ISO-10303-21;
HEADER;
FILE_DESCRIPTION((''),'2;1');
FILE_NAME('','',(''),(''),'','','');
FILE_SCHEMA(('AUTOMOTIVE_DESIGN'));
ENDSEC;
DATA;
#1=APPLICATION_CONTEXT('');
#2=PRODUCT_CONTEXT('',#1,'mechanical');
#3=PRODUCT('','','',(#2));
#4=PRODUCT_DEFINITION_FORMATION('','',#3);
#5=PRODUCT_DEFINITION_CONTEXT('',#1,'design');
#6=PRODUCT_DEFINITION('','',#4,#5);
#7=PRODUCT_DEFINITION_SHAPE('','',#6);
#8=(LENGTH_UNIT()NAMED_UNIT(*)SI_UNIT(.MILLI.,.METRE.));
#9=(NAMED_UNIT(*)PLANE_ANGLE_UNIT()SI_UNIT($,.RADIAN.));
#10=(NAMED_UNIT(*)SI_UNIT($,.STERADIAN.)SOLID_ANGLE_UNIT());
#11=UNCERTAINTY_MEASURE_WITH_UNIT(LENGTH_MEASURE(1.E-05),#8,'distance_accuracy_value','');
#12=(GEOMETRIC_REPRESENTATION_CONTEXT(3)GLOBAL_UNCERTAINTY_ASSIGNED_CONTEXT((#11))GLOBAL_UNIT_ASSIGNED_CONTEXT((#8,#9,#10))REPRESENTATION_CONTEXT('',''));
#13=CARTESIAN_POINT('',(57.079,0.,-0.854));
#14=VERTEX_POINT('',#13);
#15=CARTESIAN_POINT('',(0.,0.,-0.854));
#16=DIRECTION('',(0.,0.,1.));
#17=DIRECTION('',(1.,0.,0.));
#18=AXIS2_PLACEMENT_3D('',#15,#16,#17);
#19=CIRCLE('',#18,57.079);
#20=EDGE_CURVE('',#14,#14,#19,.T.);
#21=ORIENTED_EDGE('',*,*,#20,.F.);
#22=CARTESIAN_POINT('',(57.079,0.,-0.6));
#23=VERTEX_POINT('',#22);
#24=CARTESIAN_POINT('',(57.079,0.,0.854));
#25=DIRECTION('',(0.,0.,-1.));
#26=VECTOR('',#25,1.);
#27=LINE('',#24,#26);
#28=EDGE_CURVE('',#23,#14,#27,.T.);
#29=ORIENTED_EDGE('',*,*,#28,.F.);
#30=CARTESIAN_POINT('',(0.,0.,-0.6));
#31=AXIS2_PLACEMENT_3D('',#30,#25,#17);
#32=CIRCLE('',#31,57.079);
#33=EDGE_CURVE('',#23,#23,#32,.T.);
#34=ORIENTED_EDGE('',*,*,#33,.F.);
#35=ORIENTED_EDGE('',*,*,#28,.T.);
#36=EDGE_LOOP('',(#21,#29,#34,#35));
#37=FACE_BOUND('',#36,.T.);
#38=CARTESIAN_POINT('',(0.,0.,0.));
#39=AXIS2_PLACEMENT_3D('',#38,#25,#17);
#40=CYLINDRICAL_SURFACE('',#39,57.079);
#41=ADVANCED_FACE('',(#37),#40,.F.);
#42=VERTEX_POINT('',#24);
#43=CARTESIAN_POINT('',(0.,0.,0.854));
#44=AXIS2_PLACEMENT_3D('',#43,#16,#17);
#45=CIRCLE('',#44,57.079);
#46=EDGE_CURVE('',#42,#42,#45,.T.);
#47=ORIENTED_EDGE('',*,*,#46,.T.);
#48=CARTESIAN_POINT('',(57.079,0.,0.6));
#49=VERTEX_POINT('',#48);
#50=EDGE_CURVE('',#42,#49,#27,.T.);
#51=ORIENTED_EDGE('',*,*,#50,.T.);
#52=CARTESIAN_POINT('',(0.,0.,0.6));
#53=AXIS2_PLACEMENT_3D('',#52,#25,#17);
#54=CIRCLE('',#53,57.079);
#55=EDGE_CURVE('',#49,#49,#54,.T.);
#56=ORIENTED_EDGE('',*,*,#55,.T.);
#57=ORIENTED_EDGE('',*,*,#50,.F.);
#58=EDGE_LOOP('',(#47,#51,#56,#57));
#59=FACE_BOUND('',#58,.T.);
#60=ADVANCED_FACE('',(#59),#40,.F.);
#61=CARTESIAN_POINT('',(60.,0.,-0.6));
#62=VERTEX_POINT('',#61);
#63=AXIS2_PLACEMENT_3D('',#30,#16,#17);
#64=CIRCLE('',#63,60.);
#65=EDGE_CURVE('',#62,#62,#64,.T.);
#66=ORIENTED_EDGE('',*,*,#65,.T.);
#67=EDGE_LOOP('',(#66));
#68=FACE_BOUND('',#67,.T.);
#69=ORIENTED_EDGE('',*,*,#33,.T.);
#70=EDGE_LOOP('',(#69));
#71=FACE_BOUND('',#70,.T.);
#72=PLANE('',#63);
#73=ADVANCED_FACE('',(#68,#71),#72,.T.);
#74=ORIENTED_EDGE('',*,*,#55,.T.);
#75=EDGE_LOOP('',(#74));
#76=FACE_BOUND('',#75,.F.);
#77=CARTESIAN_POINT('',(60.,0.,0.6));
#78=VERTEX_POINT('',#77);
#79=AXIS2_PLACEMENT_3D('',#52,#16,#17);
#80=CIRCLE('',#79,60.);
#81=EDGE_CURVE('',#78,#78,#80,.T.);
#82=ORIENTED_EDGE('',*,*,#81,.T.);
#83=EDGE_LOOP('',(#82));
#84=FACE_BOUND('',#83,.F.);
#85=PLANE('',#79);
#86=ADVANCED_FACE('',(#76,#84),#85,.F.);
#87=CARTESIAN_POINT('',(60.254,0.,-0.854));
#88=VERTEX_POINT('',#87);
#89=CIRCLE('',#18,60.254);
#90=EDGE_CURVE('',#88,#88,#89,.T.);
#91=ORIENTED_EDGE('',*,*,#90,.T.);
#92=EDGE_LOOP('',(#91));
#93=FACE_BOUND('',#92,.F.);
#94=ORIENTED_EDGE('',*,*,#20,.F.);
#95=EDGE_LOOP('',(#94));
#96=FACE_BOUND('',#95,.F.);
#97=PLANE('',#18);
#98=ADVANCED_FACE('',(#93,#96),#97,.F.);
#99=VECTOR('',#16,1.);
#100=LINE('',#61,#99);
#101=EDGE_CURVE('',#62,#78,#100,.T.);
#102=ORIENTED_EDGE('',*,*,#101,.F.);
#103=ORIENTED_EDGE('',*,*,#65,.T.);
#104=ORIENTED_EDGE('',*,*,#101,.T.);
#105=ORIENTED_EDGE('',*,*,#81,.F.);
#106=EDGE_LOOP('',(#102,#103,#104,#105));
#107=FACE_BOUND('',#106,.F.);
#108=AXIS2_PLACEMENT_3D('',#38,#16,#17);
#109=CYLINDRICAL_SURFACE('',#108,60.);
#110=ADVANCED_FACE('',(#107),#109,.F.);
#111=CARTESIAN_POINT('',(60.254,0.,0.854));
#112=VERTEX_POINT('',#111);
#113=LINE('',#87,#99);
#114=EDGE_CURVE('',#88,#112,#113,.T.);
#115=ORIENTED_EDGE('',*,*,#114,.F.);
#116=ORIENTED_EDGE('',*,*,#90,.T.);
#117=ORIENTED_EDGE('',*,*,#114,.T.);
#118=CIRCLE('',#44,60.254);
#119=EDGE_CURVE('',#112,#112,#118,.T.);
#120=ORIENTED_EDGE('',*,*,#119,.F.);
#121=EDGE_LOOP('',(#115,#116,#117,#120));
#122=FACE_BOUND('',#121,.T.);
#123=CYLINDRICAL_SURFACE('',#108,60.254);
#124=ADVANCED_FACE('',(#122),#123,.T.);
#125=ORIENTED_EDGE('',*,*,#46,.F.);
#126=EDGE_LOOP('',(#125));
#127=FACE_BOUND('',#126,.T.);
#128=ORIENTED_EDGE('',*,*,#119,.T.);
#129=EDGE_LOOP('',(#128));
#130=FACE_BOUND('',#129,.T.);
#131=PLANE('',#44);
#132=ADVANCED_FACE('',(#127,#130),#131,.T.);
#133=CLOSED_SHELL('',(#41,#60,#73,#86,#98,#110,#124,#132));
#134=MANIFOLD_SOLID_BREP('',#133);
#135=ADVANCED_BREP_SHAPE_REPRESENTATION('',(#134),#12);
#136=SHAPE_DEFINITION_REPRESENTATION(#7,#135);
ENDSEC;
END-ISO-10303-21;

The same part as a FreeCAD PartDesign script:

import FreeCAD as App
import Part
import Sketcher
from FreeCAD import Vector

doc = App.newDocument("Part")
body = doc.addObject("PartDesign::Body", "Body")

# Sketch on XY plane
sketch1 = body.newObject("Sketcher::SketchObject", "Sketch")
sketch1.AttachmentSupport = (doc.getObject("XY_Plane"), [""])
sketch1.MapMode = "FlatFace"
sketch1.addGeometry([
    Part.Circle(Vector(0, 0, 0), Vector(0, 0, 1), 60.254),
    Part.Circle(Vector(0, 0, 0), Vector(0, 0, 1), 57.079),
], False)
sketch1.addConstraint([
    Sketcher.Constraint("Coincident", 0, 3, -1, 1),
    Sketcher.Constraint("Coincident", 1, 3, -1, 1),
    Sketcher.Constraint("Diameter", 0, 120.508),
    Sketcher.Constraint("Diameter", 1, 114.158),
])
pad1 = body.newObject("PartDesign::Pad", "Pad")
pad1.Profile = sketch1
pad1.Length = 1.708
pad1.Midplane = True

# Sketch on XY plane
sketch2 = body.newObject("Sketcher::SketchObject", "Sketch001")
sketch2.AttachmentSupport = (doc.getObject("XY_Plane"), [""])
sketch2.MapMode = "FlatFace"
sketch2.addGeometry(Part.Circle(Vector(0, 0, 0), Vector(0, 0, 1), 60), False)
sketch2.addConstraint([
    Sketcher.Constraint("Coincident", 0, 3, -1, 1),
    Sketcher.Constraint("Diameter", 0, 120.0),
])
pocket1 = body.newObject("PartDesign::Pocket", "Pocket")
pocket1.Profile = sketch2
pocket1.Length = 1.2
pocket1.Midplane = True

doc.recompute()
